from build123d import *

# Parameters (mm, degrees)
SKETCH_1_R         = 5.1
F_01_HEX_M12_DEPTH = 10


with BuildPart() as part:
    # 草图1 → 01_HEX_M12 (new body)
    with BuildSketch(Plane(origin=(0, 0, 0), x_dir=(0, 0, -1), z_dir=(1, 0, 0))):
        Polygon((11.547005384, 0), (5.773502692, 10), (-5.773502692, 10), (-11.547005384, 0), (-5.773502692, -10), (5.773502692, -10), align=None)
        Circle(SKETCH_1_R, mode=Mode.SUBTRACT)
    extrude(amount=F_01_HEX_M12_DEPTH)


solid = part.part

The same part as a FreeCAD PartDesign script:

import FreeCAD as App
import Part
import Sketcher
from FreeCAD import Vector
Q = App.Units.Quantity


def add_polygon(sketch, points):
    """Adds a closed chain of lines whose ends are joined by coincident constraints."""
    first, n = sketch.GeometryCount, len(points)
    for a, b in zip(points, points[1:] + points[:1]):
        sketch.addGeometry(Part.LineSegment(App.Vector(*a, 0), App.Vector(*b, 0)), False)
    for i in range(n):
        sketch.addConstraint(Sketcher.Constraint("Coincident", first + i, 2, first + (i + 1) % n, 1))

doc = App.newDocument("Part")
body = doc.addObject("PartDesign::Body", "Body")

sketch1 = body.newObject("Sketcher::SketchObject", "Sketch")
sketch1.AttachmentSupport = (doc.getObject("YZ_Plane"), [""])
sketch1.MapMode = "FlatFace"
add_polygon(sketch1, [(0, -11.547005), (10, -5.773503), (10, 5.773503), (0, 11.547005), (-10, 5.773503), (-10, -5.773503)])
sketch1.addGeometry(Part.Circle(Vector(0, 0, 0), Vector(0, 0, 1), 5.1), False)
sketch1.addConstraint(Sketcher.Constraint("Vertical", 1))
sketch1.addConstraint(Sketcher.Constraint("Vertical", 4))
sketch1.addConstraint(Sketcher.Constraint("Coincident", 6, 3, -1, 1))
sketch1.addConstraint(Sketcher.Constraint("Symmetric", 0, 2, 3, 2, -1, 1))
sketch1.addConstraint(Sketcher.Constraint("Symmetric", 2, 2, 5, 2, -1, 1))
sketch1.addConstraint(Sketcher.Constraint("PointOnObject", 2, 2, -2))
sketch1.addConstraint(Sketcher.Constraint("Parallel", 2, 5))
sketch1.addConstraint(Sketcher.Constraint("Horizontal", 1, 2, 3, 2))
sketch1.addConstraint(Sketcher.Constraint("Diameter", 6, 10.2))
sketch1.addConstraint(Sketcher.Constraint("Angle", 0, Q("30 deg")))
sketch1.addConstraint(Sketcher.Constraint("DistanceX", -1, 1, 0, 2, 10.0))
sketch1.addConstraint(Sketcher.Constraint("DistanceY", 1, 1, 1, 2, 11.547005))
pad1 = body.newObject("PartDesign::Pad", "Pad")
pad1.Profile = sketch1
pad1.Length = 10

doc.recompute()
